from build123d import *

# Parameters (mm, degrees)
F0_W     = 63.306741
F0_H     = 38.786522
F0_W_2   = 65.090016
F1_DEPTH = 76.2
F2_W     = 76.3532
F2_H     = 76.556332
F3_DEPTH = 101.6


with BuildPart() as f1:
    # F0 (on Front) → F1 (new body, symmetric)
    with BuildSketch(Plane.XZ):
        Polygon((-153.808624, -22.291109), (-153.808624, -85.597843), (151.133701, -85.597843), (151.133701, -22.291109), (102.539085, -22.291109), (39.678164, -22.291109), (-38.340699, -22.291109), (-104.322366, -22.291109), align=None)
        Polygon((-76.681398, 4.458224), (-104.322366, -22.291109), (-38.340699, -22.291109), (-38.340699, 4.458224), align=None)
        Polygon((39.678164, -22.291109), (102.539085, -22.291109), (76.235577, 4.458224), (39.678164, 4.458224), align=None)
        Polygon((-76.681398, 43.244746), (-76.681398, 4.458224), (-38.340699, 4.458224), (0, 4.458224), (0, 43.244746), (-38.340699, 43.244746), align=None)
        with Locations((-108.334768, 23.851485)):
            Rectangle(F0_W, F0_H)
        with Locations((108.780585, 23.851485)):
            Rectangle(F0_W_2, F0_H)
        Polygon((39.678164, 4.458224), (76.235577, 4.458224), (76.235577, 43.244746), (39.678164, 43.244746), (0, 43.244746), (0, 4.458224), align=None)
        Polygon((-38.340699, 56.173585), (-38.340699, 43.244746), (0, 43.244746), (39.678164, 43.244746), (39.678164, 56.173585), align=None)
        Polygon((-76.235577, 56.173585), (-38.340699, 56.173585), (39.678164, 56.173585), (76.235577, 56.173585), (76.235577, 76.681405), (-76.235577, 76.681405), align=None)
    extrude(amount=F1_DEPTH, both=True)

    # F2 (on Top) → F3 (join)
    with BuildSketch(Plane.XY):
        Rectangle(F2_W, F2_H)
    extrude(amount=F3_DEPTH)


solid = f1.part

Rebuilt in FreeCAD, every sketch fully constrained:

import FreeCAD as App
import Part
import Sketcher
Q = App.Units.Quantity

doc = App.newDocument("Part")
params = doc.addObject("Spreadsheet::Sheet", "Params")
for row, (alias, value) in enumerate([
    ("pad1_length", "6 in"),
    ("pad2_length", "4 in"),
], start=1):
    params.set(f"A{row}", alias)
    params.set(f"B{row}", "=" + value)
    params.setAlias(f"B{row}", alias)

body = doc.addObject("PartDesign::Body", "Body")

# Sketch on XZ plane
sketch1 = body.newObject("Sketcher::SketchObject", "Sketch")
sketch1.AttachmentSupport = (doc.getObject("XZ_Plane"), [""])
sketch1.MapMode = "FlatFace"
sketch1.addGeometry([
    Part.LineSegment(App.Vector(-104, -22, 0), App.Vector(-154, -22, 0)),  # 0
    Part.LineSegment(App.Vector(-154, -22, 0), App.Vector(-154, -86, 0)),  # 1
    Part.LineSegment(App.Vector(-154, -86, 0), App.Vector(151, -86, 0)),  # 2
    Part.LineSegment(App.Vector(151, -86, 0), App.Vector(151, -22, 0)),  # 3
    Part.LineSegment(App.Vector(151, -22, 0), App.Vector(103, -22, 0)),  # 4
    Part.LineSegment(App.Vector(103, -22, 0), App.Vector(76, 4, 0)),  # 5
    Part.LineSegment(App.Vector(76, 4, 0), App.Vector(141, 4, 0)),  # 6
    Part.LineSegment(App.Vector(141, 4, 0), App.Vector(141, 43, 0)),  # 7
    Part.LineSegment(App.Vector(141, 43, 0), App.Vector(40, 43, 0)),  # 8
    Part.LineSegment(App.Vector(40, 43, 0), App.Vector(40, 56, 0)),  # 9
    Part.LineSegment(App.Vector(40, 56, 0), App.Vector(76, 56, 0)),  # 10
    Part.LineSegment(App.Vector(76, 56, 0), App.Vector(76, 77, 0)),  # 11
    Part.LineSegment(App.Vector(76, 77, 0), App.Vector(-76, 77, 0)),  # 12
    Part.LineSegment(App.Vector(-76, 77, 0), App.Vector(-76, 56, 0)),  # 13
    Part.LineSegment(App.Vector(-76, 56, 0), App.Vector(-38, 56, 0)),  # 14
    Part.LineSegment(App.Vector(-38, 56, 0), App.Vector(-38, 43, 0)),  # 15
    Part.LineSegment(App.Vector(-38, 43, 0), App.Vector(-140, 43, 0)),  # 16
    Part.LineSegment(App.Vector(-140, 43, 0), App.Vector(-140, 4, 0)),  # 17
    Part.LineSegment(App.Vector(-140, 4, 0), App.Vector(-77, 4, 0)),  # 18
    Part.LineSegment(App.Vector(-77, 4, 0), App.Vector(-104, -22, 0)),  # 19
    Part.LineSegment(App.Vector(40, 4, 0), App.Vector(40, -22, 0)),  # 20
    Part.LineSegment(App.Vector(40, -22, 0), App.Vector(-38, -22, 0)),  # 21
    Part.LineSegment(App.Vector(-38, -22, 0), App.Vector(-38, 4, 0)),  # 22
    Part.LineSegment(App.Vector(-38, 4, 0), App.Vector(40, 4, 0)),  # 23
], False)
sketch1.addConstraint([
    Sketcher.Constraint("Coincident", 0, 2, 1, 1),
    Sketcher.Constraint("Coincident", 1, 2, 2, 1),
    Sketcher.Constraint("Coincident", 2, 2, 3, 1),
    Sketcher.Constraint("Coincident", 3, 2, 4, 1),
    Sketcher.Constraint("Coincident", 4, 2, 5, 1),
    Sketcher.Constraint("Coincident", 5, 2, 6, 1),
    Sketcher.Constraint("Coincident", 6, 2, 7, 1),
    Sketcher.Constraint("Coincident", 7, 2, 8, 1),
    Sketcher.Constraint("Coincident", 8, 2, 9, 1),
    Sketcher.Constraint("Coincident", 9, 2, 10, 1),
    Sketcher.Constraint("Coincident", 10, 2, 11, 1),
    Sketcher.Constraint("Coincident", 11, 2, 12, 1),
    Sketcher.Constraint("Coincident", 12, 2, 13, 1),
    Sketcher.Constraint("Coincident", 13, 2, 14, 1),
    Sketcher.Constraint("Coincident", 14, 2, 15, 1),
    Sketcher.Constraint("Coincident", 15, 2, 16, 1),
    Sketcher.Constraint("Coincident", 16, 2, 17, 1),
    Sketcher.Constraint("Coincident", 17, 2, 18, 1),
    Sketcher.Constraint("Coincident", 18, 2, 19, 1),
    Sketcher.Constraint("Coincident", 19, 2, 0, 1),
    Sketcher.Constraint("Coincident", 20, 2, 21, 1),
    Sketcher.Constraint("Coincident", 21, 2, 22, 1),
    Sketcher.Constraint("Coincident", 22, 2, 23, 1),
    Sketcher.Constraint("Coincident", 23, 2, 20, 1),
    Sketcher.Constraint("Horizontal", 0),
    Sketcher.Constraint("Vertical", 1),
    Sketcher.Constraint("Horizontal", 2),
    Sketcher.Constraint("Vertical", 3),
    Sketcher.Constraint("Horizontal", 4),
    Sketcher.Constraint("Horizontal", 6),
    Sketcher.Constraint("Vertical", 7),
    Sketcher.Constraint("Horizontal", 8),
    Sketcher.Constraint("Vertical", 9),
    Sketcher.Constraint("Horizontal", 10),
    Sketcher.Constraint("Vertical", 11),
    Sketcher.Constraint("Horizontal", 12),
    Sketcher.Constraint("Vertical", 13),
    Sketcher.Constraint("Horizontal", 14),
    Sketcher.Constraint("Vertical", 15),
    Sketcher.Constraint("Horizontal", 16),
    Sketcher.Constraint("Vertical", 17),
    Sketcher.Constraint("Horizontal", 18),
    Sketcher.Constraint("Vertical", 20),
    Sketcher.Constraint("Horizontal", 21),
    Sketcher.Constraint("Vertical", 22),
    Sketcher.Constraint("Horizontal", 23),
    Sketcher.Constraint("Symmetric", 10, 2, 13, 2, -2),
    Sketcher.Constraint("Horizontal", 0, 2, 3, 2),
    Sketcher.Constraint("Horizontal", 8, 2, 15, 2),
    Sketcher.Constraint("Horizontal", 6, 2, 17, 2),
    Sketcher.Constraint("Horizontal", 19, 2, 20, 2),
    Sketcher.Constraint("Horizontal", 18, 2, 22, 2),
    Sketcher.Constraint("Vertical", 5, 2, 10, 2),
    Sketcher.Constraint("Vertical", 9, 2, 20, 2),
    Sketcher.Constraint("Vertical", 15, 2, 21, 2),
    Sketcher.Constraint("DistanceX", 0, 2, 0, 1, Q("49.486258 mm")),
    Sketcher.Constraint("DistanceX", 8, 2, 8, 1, Q("101.647429 mm")),
    Sketcher.Constraint("DistanceX", 14, 1, 14, 2, Q("37.894878 mm")),
    Sketcher.Constraint("DistanceX", 16, 2, 16, 1, Q("101.647439 mm")),
    Sketcher.Constraint("DistanceX", 18, 1, 18, 2, Q("63.30674 mm")),
    Sketcher.Constraint("DistanceY", 7, 1, 7, 2, Q("38.786522 mm")),
    Sketcher.Constraint("DistanceY", 9, 1, 9, 2, Q("12.928839 mm")),
    Sketcher.Constraint("DistanceY", 11, 1, 11, 2, Q("20.50782 mm")),
    Sketcher.Constraint("DistanceX", -1, 1, 2, 2, Q("151.133701 mm")),
    Sketcher.Constraint("DistanceX", 14, 2, -1, 1, Q("38.340699 mm")),
    Sketcher.Constraint("DistanceX", 0, 2, 5, 2, Q("230.044201 mm")),
    Sketcher.Constraint("Distance", 5, Q("37.515348 mm")),
    Sketcher.Constraint("Distance", 19, Q("38.464918 mm")),
    Sketcher.Constraint("DistanceX", 6, 1, 6, 2, Q("65.090016 mm")),
    Sketcher.Constraint("DistanceY", 1, 2, 1, 1, Q("63.306734 mm")),
    Sketcher.Constraint("DistanceY", 0, 2, -1, 1, Q("22.291109 mm")),
])
pad1 = body.newObject("PartDesign::Pad", "Pad")
pad1.Profile = sketch1
pad1.setExpression("Length", "Params.pad1_length")
pad1.Midplane = True

# Sketch on XY plane
sketch2 = body.newObject("Sketcher::SketchObject", "Sketch001")
sketch2.AttachmentSupport = (doc.getObject("XY_Plane"), [""])
sketch2.MapMode = "FlatFace"
sketch2.addGeometry([
    Part.LineSegment(App.Vector(-38, 38, 0), App.Vector(-38, -38, 0)),
    Part.LineSegment(App.Vector(-38, -38, 0), App.Vector(38, -38, 0)),
    Part.LineSegment(App.Vector(38, -38, 0), App.Vector(38, 38, 0)),
    Part.LineSegment(App.Vector(38, 38, 0), App.Vector(-38, 38, 0)),
], False)
sketch2.addConstraint([
    Sketcher.Constraint("Coincident", 0, 2, 1, 1),
    Sketcher.Constraint("Coincident", 1, 2, 2, 1),
    Sketcher.Constraint("Coincident", 2, 2, 3, 1),
    Sketcher.Constraint("Coincident", 3, 2, 0, 1),
    Sketcher.Constraint("Vertical", 0),
    Sketcher.Constraint("Horizontal", 1),
    Sketcher.Constraint("Vertical", 2),
    Sketcher.Constraint("Horizontal", 3),
    Sketcher.Constraint("Symmetric", 0, 2, 2, 2, -1, 1),
    Sketcher.Constraint("DistanceX", 1, 1, 1, 2, Q("76.3532 mm")),
    Sketcher.Constraint("DistanceY", 0, 2, 0, 1, Q("76.556332 mm")),
])
pad2 = body.newObject("PartDesign::Pad", "Pad001")
pad2.Profile = sketch2
pad2.setExpression("Length", "Params.pad2_length")

doc.recompute()
